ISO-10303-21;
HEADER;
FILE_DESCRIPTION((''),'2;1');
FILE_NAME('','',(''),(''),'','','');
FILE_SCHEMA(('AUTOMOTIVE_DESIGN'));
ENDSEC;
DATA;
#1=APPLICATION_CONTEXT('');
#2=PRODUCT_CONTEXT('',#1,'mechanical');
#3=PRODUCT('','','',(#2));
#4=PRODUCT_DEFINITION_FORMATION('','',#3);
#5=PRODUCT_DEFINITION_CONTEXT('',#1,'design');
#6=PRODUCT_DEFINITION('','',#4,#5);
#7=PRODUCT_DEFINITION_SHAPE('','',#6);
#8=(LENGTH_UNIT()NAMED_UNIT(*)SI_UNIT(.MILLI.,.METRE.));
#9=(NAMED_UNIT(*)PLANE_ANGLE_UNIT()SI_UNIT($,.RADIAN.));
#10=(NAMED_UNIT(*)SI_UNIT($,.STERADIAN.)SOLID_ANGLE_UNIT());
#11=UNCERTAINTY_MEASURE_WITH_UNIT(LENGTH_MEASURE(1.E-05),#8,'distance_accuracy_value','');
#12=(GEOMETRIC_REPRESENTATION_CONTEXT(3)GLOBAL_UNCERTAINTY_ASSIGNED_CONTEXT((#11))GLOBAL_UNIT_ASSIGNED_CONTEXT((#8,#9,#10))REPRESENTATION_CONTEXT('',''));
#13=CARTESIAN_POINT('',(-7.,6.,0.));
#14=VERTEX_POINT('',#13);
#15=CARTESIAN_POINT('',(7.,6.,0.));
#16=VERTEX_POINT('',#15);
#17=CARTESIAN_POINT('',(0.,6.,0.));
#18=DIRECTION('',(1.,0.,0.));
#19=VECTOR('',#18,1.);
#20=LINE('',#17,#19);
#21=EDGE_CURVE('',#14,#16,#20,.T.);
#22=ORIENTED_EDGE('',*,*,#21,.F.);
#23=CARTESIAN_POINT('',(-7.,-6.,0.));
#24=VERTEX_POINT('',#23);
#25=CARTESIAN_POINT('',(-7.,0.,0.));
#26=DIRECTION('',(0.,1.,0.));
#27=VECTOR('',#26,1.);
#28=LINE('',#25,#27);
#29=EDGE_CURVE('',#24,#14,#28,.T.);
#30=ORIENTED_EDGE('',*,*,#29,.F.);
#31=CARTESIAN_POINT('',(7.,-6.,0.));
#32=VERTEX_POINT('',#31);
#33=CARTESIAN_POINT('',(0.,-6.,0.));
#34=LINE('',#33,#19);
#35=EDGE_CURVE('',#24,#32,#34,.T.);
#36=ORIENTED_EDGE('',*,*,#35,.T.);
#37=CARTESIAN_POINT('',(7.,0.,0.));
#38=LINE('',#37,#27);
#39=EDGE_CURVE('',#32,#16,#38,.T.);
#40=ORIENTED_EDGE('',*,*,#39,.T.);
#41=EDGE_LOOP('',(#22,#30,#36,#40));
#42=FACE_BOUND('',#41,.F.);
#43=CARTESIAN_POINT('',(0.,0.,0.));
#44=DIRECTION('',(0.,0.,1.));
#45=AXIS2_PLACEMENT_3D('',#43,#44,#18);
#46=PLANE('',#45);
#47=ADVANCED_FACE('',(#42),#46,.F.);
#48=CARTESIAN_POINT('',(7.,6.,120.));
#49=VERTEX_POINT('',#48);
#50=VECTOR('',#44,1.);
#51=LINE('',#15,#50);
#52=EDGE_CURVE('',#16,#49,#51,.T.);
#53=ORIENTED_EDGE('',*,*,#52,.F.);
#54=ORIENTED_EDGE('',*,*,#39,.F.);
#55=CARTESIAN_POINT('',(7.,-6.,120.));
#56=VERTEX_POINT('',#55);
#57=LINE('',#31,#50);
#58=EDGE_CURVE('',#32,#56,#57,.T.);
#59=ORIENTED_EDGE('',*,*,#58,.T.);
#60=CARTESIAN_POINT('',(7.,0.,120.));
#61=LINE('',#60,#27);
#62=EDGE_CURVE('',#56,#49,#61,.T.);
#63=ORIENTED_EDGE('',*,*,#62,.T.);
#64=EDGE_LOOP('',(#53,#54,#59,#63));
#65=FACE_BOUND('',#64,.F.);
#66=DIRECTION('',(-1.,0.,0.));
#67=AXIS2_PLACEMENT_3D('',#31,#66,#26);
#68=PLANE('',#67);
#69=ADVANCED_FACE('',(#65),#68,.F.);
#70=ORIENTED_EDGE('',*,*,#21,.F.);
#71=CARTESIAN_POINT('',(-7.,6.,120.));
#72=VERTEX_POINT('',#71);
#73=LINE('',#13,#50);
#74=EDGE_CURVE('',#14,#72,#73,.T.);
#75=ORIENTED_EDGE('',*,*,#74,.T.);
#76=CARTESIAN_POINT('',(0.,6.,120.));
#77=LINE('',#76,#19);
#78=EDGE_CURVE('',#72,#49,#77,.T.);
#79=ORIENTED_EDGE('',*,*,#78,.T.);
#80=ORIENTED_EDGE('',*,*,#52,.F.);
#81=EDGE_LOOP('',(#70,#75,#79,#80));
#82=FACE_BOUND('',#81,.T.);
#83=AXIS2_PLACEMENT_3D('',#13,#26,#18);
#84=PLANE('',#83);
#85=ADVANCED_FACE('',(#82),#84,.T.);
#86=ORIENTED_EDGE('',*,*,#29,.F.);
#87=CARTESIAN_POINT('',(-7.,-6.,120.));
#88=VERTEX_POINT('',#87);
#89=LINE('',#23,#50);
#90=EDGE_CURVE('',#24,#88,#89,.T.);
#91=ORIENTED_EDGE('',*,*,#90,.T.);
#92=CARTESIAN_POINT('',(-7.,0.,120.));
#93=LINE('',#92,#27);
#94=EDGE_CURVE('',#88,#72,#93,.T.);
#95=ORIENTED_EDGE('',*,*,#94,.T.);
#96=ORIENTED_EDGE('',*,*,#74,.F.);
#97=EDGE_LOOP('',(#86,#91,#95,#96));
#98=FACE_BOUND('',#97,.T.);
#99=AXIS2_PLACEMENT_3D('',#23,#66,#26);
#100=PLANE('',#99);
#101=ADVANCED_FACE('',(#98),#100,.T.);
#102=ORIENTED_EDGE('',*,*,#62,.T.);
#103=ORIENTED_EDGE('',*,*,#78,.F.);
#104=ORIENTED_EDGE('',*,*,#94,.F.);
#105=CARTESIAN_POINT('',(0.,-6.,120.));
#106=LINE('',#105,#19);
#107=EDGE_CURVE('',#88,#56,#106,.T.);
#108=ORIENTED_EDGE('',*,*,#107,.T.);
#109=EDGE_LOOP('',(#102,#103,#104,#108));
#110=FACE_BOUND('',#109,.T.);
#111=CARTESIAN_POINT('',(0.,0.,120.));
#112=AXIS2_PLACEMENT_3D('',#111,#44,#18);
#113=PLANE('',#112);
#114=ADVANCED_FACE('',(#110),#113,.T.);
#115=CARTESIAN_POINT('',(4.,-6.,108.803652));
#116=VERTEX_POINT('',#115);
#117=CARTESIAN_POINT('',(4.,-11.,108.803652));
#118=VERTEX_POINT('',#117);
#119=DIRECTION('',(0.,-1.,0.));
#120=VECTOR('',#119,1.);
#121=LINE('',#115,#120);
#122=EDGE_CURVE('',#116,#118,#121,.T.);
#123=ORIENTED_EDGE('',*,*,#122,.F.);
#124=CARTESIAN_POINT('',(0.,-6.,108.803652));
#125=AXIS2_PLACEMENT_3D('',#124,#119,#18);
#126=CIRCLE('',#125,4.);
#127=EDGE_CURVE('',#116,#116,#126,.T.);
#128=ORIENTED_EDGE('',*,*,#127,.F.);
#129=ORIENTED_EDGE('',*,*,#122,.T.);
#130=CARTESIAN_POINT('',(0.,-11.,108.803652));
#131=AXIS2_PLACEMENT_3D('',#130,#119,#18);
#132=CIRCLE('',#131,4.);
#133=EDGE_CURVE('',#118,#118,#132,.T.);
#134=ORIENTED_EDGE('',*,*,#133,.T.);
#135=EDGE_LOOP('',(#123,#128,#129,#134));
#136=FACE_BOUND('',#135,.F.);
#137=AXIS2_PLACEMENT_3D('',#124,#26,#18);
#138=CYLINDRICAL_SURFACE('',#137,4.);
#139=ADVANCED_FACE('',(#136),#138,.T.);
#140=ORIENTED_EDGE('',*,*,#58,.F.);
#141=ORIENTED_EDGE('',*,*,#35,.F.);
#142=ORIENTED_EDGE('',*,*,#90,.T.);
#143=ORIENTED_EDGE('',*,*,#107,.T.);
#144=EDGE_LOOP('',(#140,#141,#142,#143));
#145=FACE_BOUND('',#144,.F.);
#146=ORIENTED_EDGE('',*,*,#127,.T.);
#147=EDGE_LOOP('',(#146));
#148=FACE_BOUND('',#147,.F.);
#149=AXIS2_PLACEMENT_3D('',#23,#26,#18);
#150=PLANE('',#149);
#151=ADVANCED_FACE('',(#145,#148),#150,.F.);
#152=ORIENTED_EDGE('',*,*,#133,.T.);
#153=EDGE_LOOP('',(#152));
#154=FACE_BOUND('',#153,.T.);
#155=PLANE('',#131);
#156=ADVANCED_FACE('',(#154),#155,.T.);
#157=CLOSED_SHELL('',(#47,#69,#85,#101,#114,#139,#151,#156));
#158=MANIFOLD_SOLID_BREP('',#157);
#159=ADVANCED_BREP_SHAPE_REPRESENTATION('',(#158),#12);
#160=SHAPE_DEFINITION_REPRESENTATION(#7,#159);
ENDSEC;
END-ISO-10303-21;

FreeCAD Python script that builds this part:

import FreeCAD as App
import Part
import Sketcher
from FreeCAD import Vector

doc = App.newDocument("Part")
body = doc.addObject("PartDesign::Body", "Body")

# Sketch on XY plane
sketch1 = body.newObject("Sketcher::SketchObject", "Sketch")
sketch1.AttachmentSupport = (doc.getObject("XY_Plane"), [""])
sketch1.MapMode = "FlatFace"
sketch1.addGeometry([
    Part.LineSegment(Vector(-7, 6, 0), Vector(-7, -6, 0)),
    Part.LineSegment(Vector(-7, -6, 0), Vector(7, -6, 0)),
    Part.LineSegment(Vector(7, -6, 0), Vector(7, 6, 0)),
    Part.LineSegment(Vector(7, 6, 0), Vector(-7, 6, 0)),
], False)
sketch1.addConstraint([
    Sketcher.Constraint("Coincident", 0, 2, 1, 1),
    Sketcher.Constraint("Coincident", 1, 2, 2, 1),
    Sketcher.Constraint("Coincident", 2, 2, 3, 1),
    Sketcher.Constraint("Coincident", 3, 2, 0, 1),
    Sketcher.Constraint("Vertical", 0),
    Sketcher.Constraint("Horizontal", 1),
    Sketcher.Constraint("Vertical", 2),
    Sketcher.Constraint("Horizontal", 3),
    Sketcher.Constraint("Symmetric", 0, 2, 2, 2, -1, 1),
    Sketcher.Constraint("DistanceX", 1, 1, 1, 2, 14.0),
    Sketcher.Constraint("DistanceY", 0, 2, 0, 1, 12.0),
])
pad1 = body.newObject("PartDesign::Pad", "Pad")
pad1.Profile = sketch1
pad1.Length = 120

# Sketch on XZ plane
sketch2 = body.newObject("Sketcher::SketchObject", "Sketch001")
sketch2.AttachmentSupport = (doc.getObject("XZ_Plane"), [""])
sketch2.MapMode = "FlatFace"
sketch2.AttachmentOffset = App.Placement(Vector(0, 0, 6), App.Rotation())
sketch2.addGeometry(Part.Circle(Vector(0, 108.803652, 0), Vector(0, 0, 1), 4), False)
sketch2.addConstraint([
    Sketcher.Constraint("PointOnObject", 0, 3, -2),
    Sketcher.Constraint("Diameter", 0, 8.0),
    Sketcher.Constraint("DistanceY", -1, 1, 0, 3, 108.803652),
])
pad2 = body.newObject("PartDesign::Pad", "Pad001")
pad2.Profile = sketch2
pad2.Length = 5

doc.recompute()
